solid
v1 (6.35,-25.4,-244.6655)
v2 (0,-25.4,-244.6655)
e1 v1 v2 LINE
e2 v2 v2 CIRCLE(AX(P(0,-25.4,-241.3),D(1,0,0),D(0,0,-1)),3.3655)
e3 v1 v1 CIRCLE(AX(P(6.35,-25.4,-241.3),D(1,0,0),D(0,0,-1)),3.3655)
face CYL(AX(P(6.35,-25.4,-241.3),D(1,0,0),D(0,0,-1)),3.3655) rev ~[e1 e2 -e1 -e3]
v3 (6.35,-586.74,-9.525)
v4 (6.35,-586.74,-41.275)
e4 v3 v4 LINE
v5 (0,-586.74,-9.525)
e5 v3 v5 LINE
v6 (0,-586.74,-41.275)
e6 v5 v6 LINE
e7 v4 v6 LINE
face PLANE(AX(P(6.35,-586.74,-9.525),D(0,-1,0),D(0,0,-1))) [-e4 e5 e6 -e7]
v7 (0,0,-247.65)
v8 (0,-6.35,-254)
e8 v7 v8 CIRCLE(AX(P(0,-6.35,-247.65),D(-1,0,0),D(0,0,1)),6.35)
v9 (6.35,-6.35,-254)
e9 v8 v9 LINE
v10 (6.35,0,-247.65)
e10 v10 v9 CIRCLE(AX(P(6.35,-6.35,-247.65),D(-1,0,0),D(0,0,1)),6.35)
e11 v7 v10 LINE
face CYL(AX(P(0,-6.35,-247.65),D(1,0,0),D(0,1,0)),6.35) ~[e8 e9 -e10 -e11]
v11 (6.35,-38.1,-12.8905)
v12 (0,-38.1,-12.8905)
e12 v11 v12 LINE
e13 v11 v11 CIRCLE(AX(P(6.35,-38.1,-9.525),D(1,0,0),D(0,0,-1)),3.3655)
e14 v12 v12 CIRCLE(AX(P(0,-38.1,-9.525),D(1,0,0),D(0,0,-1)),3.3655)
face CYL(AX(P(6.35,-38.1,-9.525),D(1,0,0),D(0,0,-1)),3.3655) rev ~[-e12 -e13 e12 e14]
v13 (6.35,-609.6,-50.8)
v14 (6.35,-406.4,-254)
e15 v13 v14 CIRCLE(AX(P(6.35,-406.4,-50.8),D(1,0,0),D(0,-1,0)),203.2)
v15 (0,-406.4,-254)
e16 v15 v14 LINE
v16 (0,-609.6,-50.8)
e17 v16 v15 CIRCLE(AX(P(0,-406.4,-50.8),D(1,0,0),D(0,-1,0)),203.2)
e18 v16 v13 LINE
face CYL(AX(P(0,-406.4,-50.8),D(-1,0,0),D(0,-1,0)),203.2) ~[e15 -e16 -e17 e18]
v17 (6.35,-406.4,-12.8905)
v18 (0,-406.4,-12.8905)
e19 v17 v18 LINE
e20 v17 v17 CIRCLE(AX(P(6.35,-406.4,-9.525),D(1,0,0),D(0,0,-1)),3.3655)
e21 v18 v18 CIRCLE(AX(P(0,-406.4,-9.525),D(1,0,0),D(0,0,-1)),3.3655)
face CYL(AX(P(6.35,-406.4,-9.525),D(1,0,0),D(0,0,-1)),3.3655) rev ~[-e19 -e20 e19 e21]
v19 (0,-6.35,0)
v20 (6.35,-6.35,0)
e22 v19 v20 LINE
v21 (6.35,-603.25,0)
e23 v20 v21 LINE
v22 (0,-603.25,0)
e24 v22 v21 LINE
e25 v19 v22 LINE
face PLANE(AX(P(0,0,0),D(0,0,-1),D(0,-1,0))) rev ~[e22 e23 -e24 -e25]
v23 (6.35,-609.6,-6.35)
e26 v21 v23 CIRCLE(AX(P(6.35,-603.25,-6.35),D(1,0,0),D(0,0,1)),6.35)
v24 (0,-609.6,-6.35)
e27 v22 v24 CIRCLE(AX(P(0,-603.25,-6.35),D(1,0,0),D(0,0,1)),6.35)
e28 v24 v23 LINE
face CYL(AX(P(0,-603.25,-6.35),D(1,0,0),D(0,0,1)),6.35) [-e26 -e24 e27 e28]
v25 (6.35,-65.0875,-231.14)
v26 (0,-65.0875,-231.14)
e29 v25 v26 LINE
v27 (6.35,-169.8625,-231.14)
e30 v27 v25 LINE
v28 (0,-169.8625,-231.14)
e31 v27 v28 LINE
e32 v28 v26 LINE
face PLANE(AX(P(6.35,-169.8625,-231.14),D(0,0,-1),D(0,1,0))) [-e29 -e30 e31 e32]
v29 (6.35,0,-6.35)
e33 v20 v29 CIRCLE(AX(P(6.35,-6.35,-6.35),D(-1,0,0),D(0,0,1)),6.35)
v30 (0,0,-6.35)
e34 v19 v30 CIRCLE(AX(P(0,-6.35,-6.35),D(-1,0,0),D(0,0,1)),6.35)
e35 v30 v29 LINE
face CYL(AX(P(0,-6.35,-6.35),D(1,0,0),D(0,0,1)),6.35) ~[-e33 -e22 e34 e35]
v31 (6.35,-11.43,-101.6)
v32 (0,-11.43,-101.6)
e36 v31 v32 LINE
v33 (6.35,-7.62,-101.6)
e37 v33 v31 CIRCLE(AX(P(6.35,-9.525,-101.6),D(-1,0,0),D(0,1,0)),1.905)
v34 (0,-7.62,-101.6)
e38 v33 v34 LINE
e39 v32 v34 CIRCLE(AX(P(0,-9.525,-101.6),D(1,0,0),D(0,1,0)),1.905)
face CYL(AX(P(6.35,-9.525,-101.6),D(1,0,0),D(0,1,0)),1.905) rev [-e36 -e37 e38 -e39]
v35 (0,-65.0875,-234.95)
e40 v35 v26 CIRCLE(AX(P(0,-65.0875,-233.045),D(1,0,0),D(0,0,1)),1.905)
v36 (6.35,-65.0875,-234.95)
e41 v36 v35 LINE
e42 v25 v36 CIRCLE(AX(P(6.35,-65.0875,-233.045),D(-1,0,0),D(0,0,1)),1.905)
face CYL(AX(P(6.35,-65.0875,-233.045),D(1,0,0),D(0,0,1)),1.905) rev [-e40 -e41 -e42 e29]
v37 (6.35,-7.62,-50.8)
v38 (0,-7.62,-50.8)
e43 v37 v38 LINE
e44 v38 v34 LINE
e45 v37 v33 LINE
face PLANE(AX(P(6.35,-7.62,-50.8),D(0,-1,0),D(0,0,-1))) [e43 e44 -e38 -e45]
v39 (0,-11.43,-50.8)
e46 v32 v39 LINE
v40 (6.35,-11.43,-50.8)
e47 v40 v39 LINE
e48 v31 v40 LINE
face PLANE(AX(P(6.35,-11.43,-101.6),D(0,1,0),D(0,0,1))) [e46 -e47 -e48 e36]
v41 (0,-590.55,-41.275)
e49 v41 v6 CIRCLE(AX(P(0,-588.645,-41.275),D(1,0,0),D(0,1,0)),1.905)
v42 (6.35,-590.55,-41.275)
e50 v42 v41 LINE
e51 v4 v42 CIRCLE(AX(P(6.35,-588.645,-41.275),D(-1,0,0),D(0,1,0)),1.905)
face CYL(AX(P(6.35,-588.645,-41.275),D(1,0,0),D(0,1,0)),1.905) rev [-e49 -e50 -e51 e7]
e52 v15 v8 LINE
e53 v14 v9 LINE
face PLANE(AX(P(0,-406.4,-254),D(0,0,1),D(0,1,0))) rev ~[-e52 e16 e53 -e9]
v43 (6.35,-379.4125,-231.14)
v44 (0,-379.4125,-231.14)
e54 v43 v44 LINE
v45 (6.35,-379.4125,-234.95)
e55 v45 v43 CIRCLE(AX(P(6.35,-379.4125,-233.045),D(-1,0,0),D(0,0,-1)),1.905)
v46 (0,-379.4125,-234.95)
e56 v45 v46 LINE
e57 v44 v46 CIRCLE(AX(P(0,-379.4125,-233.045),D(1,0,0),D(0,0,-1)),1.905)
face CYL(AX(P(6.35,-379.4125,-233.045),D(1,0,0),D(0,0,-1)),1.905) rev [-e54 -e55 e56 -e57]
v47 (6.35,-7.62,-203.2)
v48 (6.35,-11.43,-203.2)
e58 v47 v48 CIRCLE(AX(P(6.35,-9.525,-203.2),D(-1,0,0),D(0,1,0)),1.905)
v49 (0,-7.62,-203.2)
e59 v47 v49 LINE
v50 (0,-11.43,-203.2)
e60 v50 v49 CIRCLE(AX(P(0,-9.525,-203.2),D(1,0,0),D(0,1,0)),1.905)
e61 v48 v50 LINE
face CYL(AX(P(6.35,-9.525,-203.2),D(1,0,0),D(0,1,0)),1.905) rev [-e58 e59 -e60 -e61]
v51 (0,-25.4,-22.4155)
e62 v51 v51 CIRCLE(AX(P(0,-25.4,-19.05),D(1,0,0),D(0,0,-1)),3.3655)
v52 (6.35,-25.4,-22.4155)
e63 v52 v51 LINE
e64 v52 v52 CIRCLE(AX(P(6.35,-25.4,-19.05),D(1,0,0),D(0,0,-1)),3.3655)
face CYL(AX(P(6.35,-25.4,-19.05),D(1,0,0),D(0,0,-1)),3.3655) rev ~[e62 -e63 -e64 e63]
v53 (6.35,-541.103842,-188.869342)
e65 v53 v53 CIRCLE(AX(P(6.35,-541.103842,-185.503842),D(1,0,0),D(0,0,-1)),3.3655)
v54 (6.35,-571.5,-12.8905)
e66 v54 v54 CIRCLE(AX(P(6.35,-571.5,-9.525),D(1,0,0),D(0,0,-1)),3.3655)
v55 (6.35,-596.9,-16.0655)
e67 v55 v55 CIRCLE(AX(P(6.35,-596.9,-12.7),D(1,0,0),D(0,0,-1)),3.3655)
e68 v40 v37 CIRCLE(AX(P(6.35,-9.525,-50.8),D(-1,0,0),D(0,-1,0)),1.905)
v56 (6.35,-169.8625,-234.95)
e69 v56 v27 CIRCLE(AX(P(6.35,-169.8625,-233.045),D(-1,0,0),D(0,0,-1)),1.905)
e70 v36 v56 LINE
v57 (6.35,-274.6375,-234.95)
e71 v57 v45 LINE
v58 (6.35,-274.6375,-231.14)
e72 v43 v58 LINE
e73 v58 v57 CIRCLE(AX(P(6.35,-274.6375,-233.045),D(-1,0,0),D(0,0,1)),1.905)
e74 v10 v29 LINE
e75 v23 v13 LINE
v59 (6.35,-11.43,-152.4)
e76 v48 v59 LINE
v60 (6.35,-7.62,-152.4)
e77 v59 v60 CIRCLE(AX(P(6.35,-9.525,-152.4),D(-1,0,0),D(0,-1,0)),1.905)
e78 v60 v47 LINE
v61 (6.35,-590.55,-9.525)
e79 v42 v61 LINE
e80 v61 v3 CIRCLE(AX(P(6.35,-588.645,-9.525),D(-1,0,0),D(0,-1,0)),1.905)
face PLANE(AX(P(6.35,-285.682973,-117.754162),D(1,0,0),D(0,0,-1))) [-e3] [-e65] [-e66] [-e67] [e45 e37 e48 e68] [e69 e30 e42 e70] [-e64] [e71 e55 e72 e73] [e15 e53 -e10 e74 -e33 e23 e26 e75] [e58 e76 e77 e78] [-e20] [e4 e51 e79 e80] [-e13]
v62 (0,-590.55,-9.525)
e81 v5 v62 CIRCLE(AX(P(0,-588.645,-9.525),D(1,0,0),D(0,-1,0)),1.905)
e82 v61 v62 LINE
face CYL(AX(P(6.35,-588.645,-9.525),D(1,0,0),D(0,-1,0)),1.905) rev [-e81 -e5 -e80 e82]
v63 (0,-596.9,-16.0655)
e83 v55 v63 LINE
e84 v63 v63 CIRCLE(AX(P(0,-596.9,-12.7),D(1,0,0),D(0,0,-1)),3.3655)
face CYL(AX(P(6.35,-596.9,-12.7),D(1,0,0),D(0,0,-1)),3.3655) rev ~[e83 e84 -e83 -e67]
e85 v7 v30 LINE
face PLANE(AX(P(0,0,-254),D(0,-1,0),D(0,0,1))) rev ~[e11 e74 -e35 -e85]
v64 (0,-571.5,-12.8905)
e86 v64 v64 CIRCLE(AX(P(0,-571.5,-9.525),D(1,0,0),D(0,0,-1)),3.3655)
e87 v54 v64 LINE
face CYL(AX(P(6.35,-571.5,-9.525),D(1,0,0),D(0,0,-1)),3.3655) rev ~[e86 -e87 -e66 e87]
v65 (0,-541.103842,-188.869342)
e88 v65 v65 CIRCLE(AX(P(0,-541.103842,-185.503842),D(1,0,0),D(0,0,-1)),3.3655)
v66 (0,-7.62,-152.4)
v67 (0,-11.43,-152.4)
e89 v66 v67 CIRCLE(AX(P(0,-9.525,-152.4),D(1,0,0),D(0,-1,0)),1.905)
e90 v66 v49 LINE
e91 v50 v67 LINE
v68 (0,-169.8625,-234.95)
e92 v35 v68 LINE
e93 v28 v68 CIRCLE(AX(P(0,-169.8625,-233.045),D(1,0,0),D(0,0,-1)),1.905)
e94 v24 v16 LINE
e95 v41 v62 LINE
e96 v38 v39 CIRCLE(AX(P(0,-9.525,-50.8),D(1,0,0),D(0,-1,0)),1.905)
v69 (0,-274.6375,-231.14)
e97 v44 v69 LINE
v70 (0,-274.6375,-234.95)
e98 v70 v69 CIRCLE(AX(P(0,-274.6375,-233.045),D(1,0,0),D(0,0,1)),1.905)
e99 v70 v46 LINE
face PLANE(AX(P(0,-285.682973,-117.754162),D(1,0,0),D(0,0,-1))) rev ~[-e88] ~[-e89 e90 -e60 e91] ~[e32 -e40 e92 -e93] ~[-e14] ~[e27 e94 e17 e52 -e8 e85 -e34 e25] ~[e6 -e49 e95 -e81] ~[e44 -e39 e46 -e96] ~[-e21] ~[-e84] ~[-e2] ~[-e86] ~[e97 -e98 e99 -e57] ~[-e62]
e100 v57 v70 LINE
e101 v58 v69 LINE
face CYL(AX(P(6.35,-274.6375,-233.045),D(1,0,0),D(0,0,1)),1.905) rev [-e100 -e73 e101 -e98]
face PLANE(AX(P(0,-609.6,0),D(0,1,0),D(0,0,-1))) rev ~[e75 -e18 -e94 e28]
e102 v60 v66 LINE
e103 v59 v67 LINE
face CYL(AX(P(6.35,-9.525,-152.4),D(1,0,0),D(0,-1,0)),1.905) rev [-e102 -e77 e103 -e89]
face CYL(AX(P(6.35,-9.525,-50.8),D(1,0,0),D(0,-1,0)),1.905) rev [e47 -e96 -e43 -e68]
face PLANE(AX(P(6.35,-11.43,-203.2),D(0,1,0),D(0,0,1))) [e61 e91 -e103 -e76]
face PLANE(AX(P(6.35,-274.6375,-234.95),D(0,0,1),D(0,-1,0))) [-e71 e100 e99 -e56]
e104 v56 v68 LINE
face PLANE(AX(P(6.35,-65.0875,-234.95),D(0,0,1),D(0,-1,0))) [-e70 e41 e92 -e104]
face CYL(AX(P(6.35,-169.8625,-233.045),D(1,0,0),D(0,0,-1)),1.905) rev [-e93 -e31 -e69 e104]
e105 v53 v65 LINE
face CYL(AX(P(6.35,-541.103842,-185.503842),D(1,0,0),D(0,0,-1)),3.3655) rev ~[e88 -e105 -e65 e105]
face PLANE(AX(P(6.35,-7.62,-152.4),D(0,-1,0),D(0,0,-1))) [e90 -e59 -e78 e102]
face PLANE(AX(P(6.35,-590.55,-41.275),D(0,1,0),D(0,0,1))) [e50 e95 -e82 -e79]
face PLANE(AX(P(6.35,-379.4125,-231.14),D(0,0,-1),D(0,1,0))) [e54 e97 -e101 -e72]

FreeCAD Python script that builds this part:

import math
import FreeCAD as App
import Part
import Sketcher
Q = App.Units.Quantity


def edges_at(feature, points):
    """Names of the edges that pass closest to the given points."""
    edges = feature.Shape.Edges
    near = lambda p: min(range(len(edges)), key=lambda i: edges[i].distToShape(Part.Vertex(*p))[0])
    return sorted({f"Edge{near(p) + 1}" for p in points})

doc = App.newDocument("Part")
body = doc.addObject("PartDesign::Body", "Body")

# Sketch on YZ plane
sketch1 = doc.addObject("Sketcher::SketchObject", "Sketch")
body.addObject(sketch1)
sketch1.AttachmentSupport = (doc.YZ_Plane, [""])
sketch1.MapMode = "FlatFace"
sketch1.addGeometry([
    Part.LineSegment(App.Vector(0, 0, 0), App.Vector(-609.6, 0, 0)),  # 0
    Part.LineSegment(App.Vector(-609.6, 0, 0), App.Vector(-609.6, -50.8, 0)),  # 1
    Part.ArcOfCircle(Part.Circle(App.Vector(-406.4, -50.8, 0), App.Vector(0, 0, 1), 203.2), math.radians(180), math.radians(270)),  # 2
    Part.LineSegment(App.Vector(-406.4, -254, 0), App.Vector(0, -254, 0)),  # 3
    Part.LineSegment(App.Vector(0, -254, 0), App.Vector(0, 0, 0)),  # 4
], False)
sketch1.addConstraint([
    Sketcher.Constraint("Coincident", 0, 2, 1, 1),
    Sketcher.Constraint("Tangent", 1, 2, 2, 1),
    Sketcher.Constraint("Tangent", 2, 2, 3, 1),
    Sketcher.Constraint("Coincident", 3, 2, 4, 1),
    Sketcher.Constraint("Coincident", 4, 2, 0, 1),
    Sketcher.Constraint("Horizontal", 0),
    Sketcher.Constraint("Vertical", 1),
    Sketcher.Constraint("Horizontal", 3),
    Sketcher.Constraint("Vertical", 4),
    Sketcher.Constraint("Coincident", 4, 2, -1, 1),
    Sketcher.Constraint("Radius", 2, Q("8 in")),
    Sketcher.Constraint("DistanceX", 0, 2, 0, 1, Q("24 in")),
    Sketcher.Constraint("DistanceY", 1, 2, 1, 1, Q("2 in")),
])
pad1 = doc.addObject("PartDesign::Pad", "Pad")
body.addObject(pad1)
pad1.Profile = sketch1
pad1.Length = Q("0.25 in")

# Sketch on YZ plane
sketch2 = doc.addObject("Sketcher::SketchObject", "Sketch001")
body.addObject(sketch2)
sketch2.AttachmentSupport = (doc.YZ_Plane, [""])
sketch2.MapMode = "FlatFace"
sketch2.AttachmentOffset = App.Placement(App.Vector(0, 0, 0.25 * 25.4), App.Rotation())
sketch2.addGeometry([
    Part.Circle(App.Vector(-25.4, -241.3, 0), App.Vector(0, 0, 1), 3.3655),
    Part.Circle(App.Vector(-596.9, -12.7, 0), App.Vector(0, 0, 1), 3.3655),
    Part.Circle(App.Vector(-541.103842, -185.503842, 0), App.Vector(0, 0, 1), 3.3655),
    Part.Circle(App.Vector(-25.4, -19.05, 0), App.Vector(0, 0, 1), 3.3655),
], False)
sketch2.addConstraint([
    Sketcher.Constraint("Equal", 0, 1),
    Sketcher.Constraint("Equal", 1, 2),
    Sketcher.Constraint("Equal", 2, 3),
    Sketcher.Constraint("Vertical", 0, 3, 3, 3),
    Sketcher.Constraint("Diameter", 0, Q("0.265 in")),
    Sketcher.Constraint("DistanceX", 0, 3, -1, 1, Q("1 in")),
    Sketcher.Constraint("DistanceY", 0, 3, 1, 3, Q("9 in")),
    Sketcher.Constraint("DistanceY", 0, 3, -1, 1, Q("9.5 in")),
    Sketcher.Constraint("DistanceX", 1, 3, -1, 1, Q("23.5 in")),
    Sketcher.Constraint("DistanceY", 3, 3, -1, 1, Q("0.75 in")),
    Sketcher.Constraint("DistanceX", 2, 3, -1, 1, Q("541.103842 mm")),
    Sketcher.Constraint("DistanceY", 2, 3, -1, 1, Q("185.503842 mm")),
])
pocket1 = doc.addObject("PartDesign::Pocket", "Pocket")
body.addObject(pocket1)
pocket1.Profile = sketch2
pocket1.Type = "ThroughAll"
doc.recompute()

fillet = doc.addObject("PartDesign::Fillet", "Fillet")
body.addObject(fillet)
fillet.Base = (pocket1, edges_at(pocket1, [(3.175, 0, -254), (3.175, -609.6, 0), (3.175, 0, 0)]))
fillet.Radius = Q("0.25 in")

# Sketch on YZ plane
sketch3 = doc.addObject("Sketcher::SketchObject", "Sketch002")
body.addObject(sketch3)
sketch3.AttachmentSupport = (doc.YZ_Plane, [""])
sketch3.MapMode = "FlatFace"
sketch3.AttachmentOffset = App.Placement(App.Vector(0, 0, 0.25 * 25.4), App.Rotation())
sketch3.addGeometry([
    Part.LineSegment(App.Vector(-7.62, -101.6, 0), App.Vector(-7.62, -50.8, 0)),  # 0
    Part.ArcOfCircle(Part.Circle(App.Vector(-9.525, -50.8, 0), App.Vector(0, 0, 1), 1.905), math.radians(0), math.radians(180)),  # 1
    Part.LineSegment(App.Vector(-11.43, -50.8, 0), App.Vector(-11.43, -101.6, 0)),  # 2
    Part.ArcOfCircle(Part.Circle(App.Vector(-9.525, -101.6, 0), App.Vector(0, 0, 1), 1.905), math.radians(180), math.radians(360)),  # 3
    Part.LineSegment(App.Vector(-7.62, -203.2, 0), App.Vector(-7.62, -152.4, 0)),  # 4
    Part.ArcOfCircle(Part.Circle(App.Vector(-9.525, -152.4, 0), App.Vector(0, 0, 1), 1.905), math.radians(0), math.radians(180)),  # 5
    Part.LineSegment(App.Vector(-11.43, -152.4, 0), App.Vector(-11.43, -203.2, 0)),  # 6
    Part.ArcOfCircle(Part.Circle(App.Vector(-9.525, -203.2, 0), App.Vector(0, 0, 1), 1.905), math.radians(180), math.radians(360)),  # 7
], False)
sketch3.addConstraint([
    Sketcher.Constraint("Tangent", 0, 2, 1, 1),
    Sketcher.Constraint("Tangent", 1, 2, 2, 1),
    Sketcher.Constraint("Tangent", 2, 2, 3, 1),
    Sketcher.Constraint("Tangent", 3, 2, 0, 1),
    Sketcher.Constraint("Tangent", 4, 2, 5, 1),
    Sketcher.Constraint("Tangent", 5, 2, 6, 1),
    Sketcher.Constraint("Tangent", 6, 2, 7, 1),
    Sketcher.Constraint("Tangent", 7, 2, 4, 1),
    Sketcher.Constraint("Vertical", 0),
    Sketcher.Constraint("Vertical", 2),
    Sketcher.Constraint("Vertical", 4),
    Sketcher.Constraint("Vertical", 6),
    Sketcher.Constraint("Equal", 3, 5),
    Sketcher.Constraint("Vertical", 3, 3, 5, 3),
    Sketcher.Constraint("Equal", 2, 4),
    Sketcher.Constraint("DistanceY", 0, 1, 0, 2, Q("2 in")),
    Sketcher.Constraint("DistanceY", 1, 3, -1, 1, Q("2 in")),
    Sketcher.Constraint("DistanceY", 5, 3, -1, 1, Q("6 in")),
    Sketcher.Constraint("Radius", 1, Q("0.075 in")),
    Sketcher.Constraint("DistanceX", 0, 2, -1, 1, Q("0.3 in")),
])
pocket2 = doc.addObject("PartDesign::Pocket", "Pocket001")
body.addObject(pocket2)
pocket2.Profile = sketch3
pocket2.Type = "ThroughAll"

# Sketch on YZ plane
sketch4 = doc.addObject("Sketcher::SketchObject", "Sketch003")
body.addObject(sketch4)
sketch4.AttachmentSupport = (doc.YZ_Plane, [""])
sketch4.MapMode = "FlatFace"
sketch4.AttachmentOffset = App.Placement(App.Vector(0, 0, 0.25 * 25.4), App.Rotation())
sketch4.addGeometry([
    Part.Circle(App.Vector(-38.1, -9.525, 0), App.Vector(0, 0, 1), 3.3655),
    Part.Circle(App.Vector(-406.4, -9.525, 0), App.Vector(0, 0, 1), 3.3655),
    Part.Circle(App.Vector(-571.5, -9.525, 0), App.Vector(0, 0, 1), 3.3655),
], False)
sketch4.addConstraint([
    Sketcher.Constraint("Equal", 0, 1),
    Sketcher.Constraint("Equal", 1, 2),
    Sketcher.Constraint("Horizontal", 0, 3, 1, 3),
    Sketcher.Constraint("Horizontal", 1, 3, 2, 3),
    Sketcher.Constraint("Diameter", 0, Q("0.265 in")),
    Sketcher.Constraint("DistanceX", 1, 3, -1, 1, Q("16 in")),
    Sketcher.Constraint("DistanceX", 2, 3, 0, 3, Q("21 in")),
    Sketcher.Constraint("DistanceX", 0, 3, -1, 1, Q("1.5 in")),
    Sketcher.Constraint("DistanceY", 0, 3, -1, 1, Q("0.375 in")),
])
pocket3 = doc.addObject("PartDesign::Pocket", "Pocket002")
body.addObject(pocket3)
pocket3.Profile = sketch4
pocket3.Type = "ThroughAll"

# Sketch on YZ plane
sketch5 = doc.addObject("Sketcher::SketchObject", "Sketch004")
body.addObject(sketch5)
sketch5.AttachmentSupport = (doc.YZ_Plane, [""])
sketch5.MapMode = "FlatFace"
sketch5.AttachmentOffset = App.Placement(App.Vector(0, 0, 0.25 * 25.4), App.Rotation())
sketch5.addGeometry([
    Part.LineSegment(App.Vector(-169.8625, -234.95, 0), App.Vector(-65.0875, -234.95, 0)),  # 0
    Part.ArcOfCircle(Part.Circle(App.Vector(-65.0875, -233.045, 0), App.Vector(0, 0, 1), 1.905), math.radians(-90), math.radians(90)),  # 1
    Part.LineSegment(App.Vector(-65.0875, -231.14, 0), App.Vector(-169.8625, -231.14, 0)),  # 2
    Part.ArcOfCircle(Part.Circle(App.Vector(-169.8625, -233.045, 0), App.Vector(0, 0, 1), 1.905), math.radians(90), math.radians(270)),  # 3
    Part.LineSegment(App.Vector(-274.6375, -231.14, 0), App.Vector(-379.4125, -231.14, 0)),  # 4
    Part.ArcOfCircle(Part.Circle(App.Vector(-379.4125, -233.045, 0), App.Vector(0, 0, 1), 1.905), math.radians(90), math.radians(270)),  # 5
    Part.LineSegment(App.Vector(-379.4125, -234.95, 0), App.Vector(-274.6375, -234.95, 0)),  # 6
    Part.ArcOfCircle(Part.Circle(App.Vector(-274.6375, -233.045, 0), App.Vector(0, 0, 1), 1.905), math.radians(-90), math.radians(90)),  # 7
], False)
sketch5.addConstraint([
    Sketcher.Constraint("Tangent", 0, 2, 1, 1),
    Sketcher.Constraint("Tangent", 1, 2, 2, 1),
    Sketcher.Constraint("Tangent", 2, 2, 3, 1),
    Sketcher.Constraint("Tangent", 3, 2, 0, 1),
    Sketcher.Constraint("Tangent", 4, 2, 5, 1),
    Sketcher.Constraint("Tangent", 5, 2, 6, 1),
    Sketcher.Constraint("Tangent", 6, 2, 7, 1),
    Sketcher.Constraint("Tangent", 7, 2, 4, 1),
    Sketcher.Constraint("Horizontal", 0),
    Sketcher.Constraint("Horizontal", 2),
    Sketcher.Constraint("Horizontal", 4),
    Sketcher.Constraint("Horizontal", 6),
    Sketcher.Constraint("Equal", 3, 5),
    Sketcher.Constraint("Horizontal", 3, 3, 5, 3),
    Sketcher.Constraint("Equal", 2, 4),
    Sketcher.Constraint("Radius", 1, Q("0.075 in")),
    Sketcher.Constraint("DistanceY", 1, 2, -1, 1, Q("9.1 in")),
    Sketcher.Constraint("DistanceX", 0, 1, 0, 2, Q("4.125 in")),
    Sketcher.Constraint("DistanceX", 5, 3, 3, 3, Q("8.25 in")),
    Sketcher.Constraint("DistanceX", 1, 3, -1, 1, Q("2.5625 in")),
])
pocket4 = doc.addObject("PartDesign::Pocket", "Pocket003")
body.addObject(pocket4)
pocket4.Profile = sketch5
pocket4.Type = "ThroughAll"

# Sketch on YZ plane
sketch6 = doc.addObject("Sketcher::SketchObject", "Sketch005")
body.addObject(sketch6)
sketch6.AttachmentSupport = (doc.YZ_Plane, [""])
sketch6.MapMode = "FlatFace"
sketch6.AttachmentOffset = App.Placement(App.Vector(0, 0, 0.25 * 25.4), App.Rotation())
sketch6.addGeometry([
    Part.LineSegment(App.Vector(-586.74, -41.275, 0), App.Vector(-586.74, -9.525, 0)),
    Part.ArcOfCircle(Part.Circle(App.Vector(-588.645, -9.525, 0), App.Vector(0, 0, 1), 1.905), math.radians(0), math.radians(180)),
    Part.LineSegment(App.Vector(-590.55, -9.525, 0), App.Vector(-590.55, -41.275, 0)),
    Part.ArcOfCircle(Part.Circle(App.Vector(-588.645, -41.275, 0), App.Vector(0, 0, 1), 1.905), math.radians(180), math.radians(360)),
], False)
sketch6.addConstraint([
    Sketcher.Constraint("Tangent", 0, 2, 1, 1),
    Sketcher.Constraint("Tangent", 1, 2, 2, 1),
    Sketcher.Constraint("Tangent", 2, 2, 3, 1),
    Sketcher.Constraint("Tangent", 3, 2, 0, 1),
    Sketcher.Constraint("Vertical", 0),
    Sketcher.Constraint("Vertical", 2),
    Sketcher.Constraint("Radius", 1, Q("0.075 in")),
    Sketcher.Constraint("DistanceY", 0, 1, 0, 2, Q("1.25 in")),
    Sketcher.Constraint("DistanceX", 0, 2, -1, 1, Q("23.1 in")),
    Sketcher.Constraint("DistanceY", 1, 3, -1, 1, Q("0.375 in")),
])
pocket5 = doc.addObject("PartDesign::Pocket", "Pocket004")
body.addObject(pocket5)
pocket5.Profile = sketch6
pocket5.Type = "ThroughAll"
pocket5.Midplane = True

doc.recompute()
